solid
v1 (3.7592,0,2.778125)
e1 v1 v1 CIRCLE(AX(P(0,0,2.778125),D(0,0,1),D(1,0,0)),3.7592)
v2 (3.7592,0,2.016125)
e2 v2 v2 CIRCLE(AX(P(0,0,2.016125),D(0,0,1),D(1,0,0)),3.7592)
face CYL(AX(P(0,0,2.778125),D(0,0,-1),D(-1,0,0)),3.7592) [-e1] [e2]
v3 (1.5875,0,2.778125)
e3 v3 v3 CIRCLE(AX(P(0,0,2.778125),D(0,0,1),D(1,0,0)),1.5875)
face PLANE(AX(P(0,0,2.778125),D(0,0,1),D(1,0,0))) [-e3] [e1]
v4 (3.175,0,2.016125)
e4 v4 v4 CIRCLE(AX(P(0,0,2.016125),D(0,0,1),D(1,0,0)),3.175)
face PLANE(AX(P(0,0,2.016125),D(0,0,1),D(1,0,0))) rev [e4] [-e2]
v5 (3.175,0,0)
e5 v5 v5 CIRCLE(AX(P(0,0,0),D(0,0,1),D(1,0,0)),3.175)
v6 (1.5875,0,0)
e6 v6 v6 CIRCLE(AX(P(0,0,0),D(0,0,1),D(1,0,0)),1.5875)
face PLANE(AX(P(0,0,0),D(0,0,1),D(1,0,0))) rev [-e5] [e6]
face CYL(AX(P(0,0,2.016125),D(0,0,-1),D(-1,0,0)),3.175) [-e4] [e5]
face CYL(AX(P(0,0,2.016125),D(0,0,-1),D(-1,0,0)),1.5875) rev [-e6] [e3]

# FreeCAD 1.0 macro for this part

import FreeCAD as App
import Part
import Sketcher
from FreeCAD import Vector
Q = App.Units.Quantity

doc = App.newDocument("Part")
body = doc.addObject("PartDesign::Body", "Body")

sketch1 = body.newObject("Sketcher::SketchObject", "Sketch")
sketch1.AttachmentSupport = (doc.getObject("XY_Plane"), [""])
sketch1.MapMode = "FlatFace"
sketch1.addGeometry(Part.Circle(Vector(0, 0, 0), Vector(0, 0, 1), 3.2), False)
sketch1.addGeometry(Part.Circle(Vector(0, 0, 0), Vector(0, 0, 1), 1.6), False)
sketch1.addConstraint(Sketcher.Constraint("Coincident", 0, 3, -1, 1))
sketch1.addConstraint(Sketcher.Constraint("Coincident", 1, 3, -1, 1))
sketch1.addConstraint(Sketcher.Constraint("Diameter", 0, Q("0.25 in")))
sketch1.addConstraint(Sketcher.Constraint("Diameter", 1, Q("0.125 in")))
pad1 = body.newObject("PartDesign::Pad", "Pad")
pad1.Profile = sketch1
pad1.Length = 2.016125

sketch2 = body.newObject("Sketcher::SketchObject", "Sketch001")
sketch2.AttachmentSupport = (doc.getObject("XY_Plane"), [""])
sketch2.MapMode = "FlatFace"
sketch2.AttachmentOffset = App.Placement(Vector(0, 0, 2.016125), App.Rotation())
sketch2.addGeometry(Part.Circle(Vector(0, 0, 0), Vector(0, 0, 1), 3.8), False)
sketch2.addGeometry(Part.Circle(Vector(0, 0, 0), Vector(0, 0, 1), 1.6), False)
sketch2.addConstraint(Sketcher.Constraint("Coincident", 0, 3, -1, 1))
sketch2.addConstraint(Sketcher.Constraint("Coincident", 1, 3, -1, 1))
sketch2.addConstraint(Sketcher.Constraint("Diameter", 0, Q("0.296 in")))
sketch2.addConstraint(Sketcher.Constraint("Diameter", 1, Q("0.125 in")))
pad2 = body.newObject("PartDesign::Pad", "Pad001")
pad2.Profile = sketch2
pad2.Length = Q("0.03 in")

doc.recompute()
